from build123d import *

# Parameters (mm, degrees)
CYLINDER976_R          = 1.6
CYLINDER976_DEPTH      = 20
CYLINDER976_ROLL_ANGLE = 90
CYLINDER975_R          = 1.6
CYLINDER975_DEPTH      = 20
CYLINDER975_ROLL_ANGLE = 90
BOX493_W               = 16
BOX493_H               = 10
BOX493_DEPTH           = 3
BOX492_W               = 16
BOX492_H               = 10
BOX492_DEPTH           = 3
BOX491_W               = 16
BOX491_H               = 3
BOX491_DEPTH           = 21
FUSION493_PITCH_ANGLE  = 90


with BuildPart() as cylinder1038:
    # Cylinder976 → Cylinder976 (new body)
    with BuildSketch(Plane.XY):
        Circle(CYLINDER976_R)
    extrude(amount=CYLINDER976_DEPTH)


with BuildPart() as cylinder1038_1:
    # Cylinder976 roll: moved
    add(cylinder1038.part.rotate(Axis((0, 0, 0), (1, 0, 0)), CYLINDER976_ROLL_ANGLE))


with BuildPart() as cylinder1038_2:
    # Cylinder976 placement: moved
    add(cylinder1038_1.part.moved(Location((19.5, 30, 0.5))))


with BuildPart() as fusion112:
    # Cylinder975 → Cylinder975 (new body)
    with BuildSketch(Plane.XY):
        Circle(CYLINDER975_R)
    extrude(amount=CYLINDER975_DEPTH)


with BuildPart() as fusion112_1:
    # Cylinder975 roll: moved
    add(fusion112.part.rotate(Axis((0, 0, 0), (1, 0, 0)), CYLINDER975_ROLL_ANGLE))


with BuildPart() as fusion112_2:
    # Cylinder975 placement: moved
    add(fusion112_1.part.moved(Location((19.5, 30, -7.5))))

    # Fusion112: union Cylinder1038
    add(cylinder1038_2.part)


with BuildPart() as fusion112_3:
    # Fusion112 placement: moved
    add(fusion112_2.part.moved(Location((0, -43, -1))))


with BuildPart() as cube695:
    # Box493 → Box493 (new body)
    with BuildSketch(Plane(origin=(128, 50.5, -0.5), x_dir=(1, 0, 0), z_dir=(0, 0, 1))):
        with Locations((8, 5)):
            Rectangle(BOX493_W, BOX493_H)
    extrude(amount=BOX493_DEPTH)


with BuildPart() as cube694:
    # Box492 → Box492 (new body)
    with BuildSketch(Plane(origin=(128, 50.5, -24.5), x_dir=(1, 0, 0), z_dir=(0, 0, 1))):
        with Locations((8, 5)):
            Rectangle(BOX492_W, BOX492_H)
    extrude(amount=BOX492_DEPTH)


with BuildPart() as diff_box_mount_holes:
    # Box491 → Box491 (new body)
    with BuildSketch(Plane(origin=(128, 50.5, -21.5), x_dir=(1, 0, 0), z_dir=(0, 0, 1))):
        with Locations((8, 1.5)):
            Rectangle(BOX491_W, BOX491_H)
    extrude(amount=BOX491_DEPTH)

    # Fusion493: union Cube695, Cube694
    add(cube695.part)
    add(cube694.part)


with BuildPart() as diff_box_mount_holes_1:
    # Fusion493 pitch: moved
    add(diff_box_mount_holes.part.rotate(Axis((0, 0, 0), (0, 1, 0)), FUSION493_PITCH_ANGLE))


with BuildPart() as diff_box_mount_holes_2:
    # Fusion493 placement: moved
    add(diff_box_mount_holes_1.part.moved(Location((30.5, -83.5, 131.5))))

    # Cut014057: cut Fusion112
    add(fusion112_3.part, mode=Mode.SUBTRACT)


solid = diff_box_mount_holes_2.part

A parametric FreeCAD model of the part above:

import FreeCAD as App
import Part
import Sketcher
from FreeCAD import Vector


def add_polygon(sketch, points):
    """Adds a closed chain of lines whose ends are joined by coincident constraints."""
    first, n = sketch.GeometryCount, len(points)
    for a, b in zip(points, points[1:] + points[:1]):
        sketch.addGeometry(Part.LineSegment(App.Vector(*a, 0), App.Vector(*b, 0)), False)
    for i in range(n):
        sketch.addConstraint(Sketcher.Constraint("Coincident", first + i, 2, first + (i + 1) % n, 1))

doc = App.newDocument("Part")
body = doc.addObject("PartDesign::Body", "Body")

# Sketch on XY plane
sketch1 = body.newObject("Sketcher::SketchObject", "Sketch")
sketch1.AttachmentSupport = (doc.getObject("XY_Plane"), [""])
sketch1.MapMode = "FlatFace"
sketch1.addGeometry(Part.Circle(Vector(0, 0, 0), Vector(0, 0, 1), 1.6), False)
sketch1.addConstraint([
    Sketcher.Constraint("Coincident", 0, 3, -1, 1),
    Sketcher.Constraint("Diameter", 0, 3.2),
])
pad1 = body.newObject("PartDesign::Pad", "Pad")
pad1.Profile = sketch1
pad1.Length = 20
body2 = doc.addObject("PartDesign::Body", "Body001")
doc.recompute()

body.Placement = App.Placement(Vector(0, 0, 0), App.Rotation(Vector(1, 0, 0), 90))
boolean = body2.newObject("PartDesign::Boolean", "Boolean")
boolean.Type = "Fuse"
boolean.addObjects([body])
body3 = doc.addObject("PartDesign::Body", "Body002")
doc.recompute()

body2.Placement = App.Placement(Vector(19.5, 30, 0.5), App.Rotation(Vector(0, 0, 1), 0))
boolean2 = body3.newObject("PartDesign::Boolean", "Boolean001")
boolean2.Type = "Fuse"
boolean2.addObjects([body2])
body4 = doc.addObject("PartDesign::Body", "Body003")

# Sketch on XY plane
sketch2 = body4.newObject("Sketcher::SketchObject", "Sketch001")
sketch2.AttachmentSupport = (doc.getObject("XY_Plane003"), [""])
sketch2.MapMode = "FlatFace"
sketch2.addGeometry(Part.Circle(Vector(0, 0, 0), Vector(0, 0, 1), 1.6), False)
sketch2.addConstraint([
    Sketcher.Constraint("Coincident", 0, 3, -1, 1),
    Sketcher.Constraint("Diameter", 0, 3.2),
])
pad2 = body4.newObject("PartDesign::Pad", "Pad001")
pad2.Profile = sketch2
pad2.Length = 20
body5 = doc.addObject("PartDesign::Body", "Body004")
doc.recompute()

body4.Placement = App.Placement(Vector(0, 0, 0), App.Rotation(Vector(1, 0, 0), 90))
boolean3 = body5.newObject("PartDesign::Boolean", "Boolean002")
boolean3.Type = "Fuse"
boolean3.addObjects([body4])
body6 = doc.addObject("PartDesign::Body", "Body005")
body6.AllowCompound = True
doc.recompute()

body5.Placement = App.Placement(Vector(19.5, 30, -7.5), App.Rotation(Vector(0, 0, 1), 0))
boolean4 = body6.newObject("PartDesign::Boolean", "Boolean003")
boolean4.Type = "Fuse"
boolean4.addObjects([body5])
doc.recompute()

boolean5 = body6.newObject("PartDesign::Boolean", "Boolean004")
boolean5.Type = "Fuse"
boolean5.addObjects([body3])
body7 = doc.addObject("PartDesign::Body", "Body006")
body7.AllowCompound = True
doc.recompute()

body6.Placement = App.Placement(Vector(0, -43, -1), App.Rotation(Vector(0, 0, 1), 0))
boolean6 = body7.newObject("PartDesign::Boolean", "Boolean005")
boolean6.Type = "Fuse"
boolean6.addObjects([body6])
body8 = doc.addObject("PartDesign::Body", "Body007")

# Sketch on XY plane
sketch3 = body8.newObject("Sketcher::SketchObject", "Sketch002")
sketch3.AttachmentSupport = (doc.getObject("XY_Plane007"), [""])
sketch3.MapMode = "FlatFace"
sketch3.AttachmentOffset = App.Placement(Vector(0, 0, -0.5), App.Rotation())
add_polygon(sketch3, [(128, 60.5), (128, 50.5), (144, 50.5), (144, 60.5)])  # lines 0-3
sketch3.addConstraint([
    Sketcher.Constraint("Vertical", 0),
    Sketcher.Constraint("Horizontal", 1),
    Sketcher.Constraint("Vertical", 2),
    Sketcher.Constraint("Horizontal", 3),
    Sketcher.Constraint("DistanceX", 1, 1, 1, 2, 16.0),
    Sketcher.Constraint("DistanceY", 0, 2, 0, 1, 10.0),
    Sketcher.Constraint("DistanceX", -1, 1, 0, 2, 128.0),
    Sketcher.Constraint("DistanceY", -1, 1, 0, 2, 50.5),
])
pad3 = body8.newObject("PartDesign::Pad", "Pad002")
pad3.Profile = sketch3
pad3.Length = 3
body9 = doc.addObject("PartDesign::Body", "Body008")

# Sketch on XY plane
sketch4 = body9.newObject("Sketcher::SketchObject", "Sketch003")
sketch4.AttachmentSupport = (doc.getObject("XY_Plane008"), [""])
sketch4.MapMode = "FlatFace"
sketch4.AttachmentOffset = App.Placement(Vector(0, 0, -24.5), App.Rotation())
add_polygon(sketch4, [(128, 60.5), (128, 50.5), (144, 50.5), (144, 60.5)])  # lines 0-3
sketch4.addConstraint([
    Sketcher.Constraint("Vertical", 0),
    Sketcher.Constraint("Horizontal", 1),
    Sketcher.Constraint("Vertical", 2),
    Sketcher.Constraint("Horizontal", 3),
    Sketcher.Constraint("DistanceX", 1, 1, 1, 2, 16.0),
    Sketcher.Constraint("DistanceY", 0, 2, 0, 1, 10.0),
    Sketcher.Constraint("DistanceX", -1, 1, 0, 2, 128.0),
    Sketcher.Constraint("DistanceY", -1, 1, 0, 2, 50.5),
])
pad4 = body9.newObject("PartDesign::Pad", "Pad003")
pad4.Profile = sketch4
pad4.Length = 3
body10 = doc.addObject("PartDesign::Body", "Body009")

# Sketch on XY plane
sketch5 = body10.newObject("Sketcher::SketchObject", "Sketch004")
sketch5.AttachmentSupport = (doc.getObject("XY_Plane009"), [""])
sketch5.MapMode = "FlatFace"
sketch5.AttachmentOffset = App.Placement(Vector(0, 0, -21.5), App.Rotation())
add_polygon(sketch5, [(128, 53.5), (128, 50.5), (144, 50.5), (144, 53.5)])  # lines 0-3
sketch5.addConstraint([
    Sketcher.Constraint("Vertical", 0),
    Sketcher.Constraint("Horizontal", 1),
    Sketcher.Constraint("Vertical", 2),
    Sketcher.Constraint("Horizontal", 3),
    Sketcher.Constraint("DistanceX", 1, 1, 1, 2, 16.0),
    Sketcher.Constraint("DistanceY", 0, 2, 0, 1, 3.0),
    Sketcher.Constraint("DistanceX", -1, 1, 0, 2, 128.0),
    Sketcher.Constraint("DistanceY", -1, 1, 0, 2, 50.5),
])
pad5 = body10.newObject("PartDesign::Pad", "Pad004")
pad5.Profile = sketch5
pad5.Length = 21
doc.recompute()

boolean7 = body10.newObject("PartDesign::Boolean", "Boolean006")
boolean7.Type = "Fuse"
boolean7.addObjects([body8])
doc.recompute()

boolean8 = body10.newObject("PartDesign::Boolean", "Boolean007")
boolean8.Type = "Fuse"
boolean8.addObjects([body9])
body11 = doc.addObject("PartDesign::Body", "Body010")
doc.recompute()

body10.Placement = App.Placement(Vector(0, 0, 0), App.Rotation(Vector(0, 1, 0), 90))
boolean9 = body11.newObject("PartDesign::Boolean", "Boolean008")
boolean9.Type = "Fuse"
boolean9.addObjects([body10])
body12 = doc.addObject("PartDesign::Body", "Body011")
doc.recompute()

body11.Placement = App.Placement(Vector(30.5, -83.5, 131.5), App.Rotation(Vector(0, 0, 1), 0))
boolean10 = body12.newObject("PartDesign::Boolean", "Boolean009")
boolean10.Type = "Fuse"
boolean10.addObjects([body11])
doc.recompute()

boolean11 = body12.newObject("PartDesign::Boolean", "Boolean010")
boolean11.Type = "Cut"
boolean11.addObjects([body7])

doc.recompute()
